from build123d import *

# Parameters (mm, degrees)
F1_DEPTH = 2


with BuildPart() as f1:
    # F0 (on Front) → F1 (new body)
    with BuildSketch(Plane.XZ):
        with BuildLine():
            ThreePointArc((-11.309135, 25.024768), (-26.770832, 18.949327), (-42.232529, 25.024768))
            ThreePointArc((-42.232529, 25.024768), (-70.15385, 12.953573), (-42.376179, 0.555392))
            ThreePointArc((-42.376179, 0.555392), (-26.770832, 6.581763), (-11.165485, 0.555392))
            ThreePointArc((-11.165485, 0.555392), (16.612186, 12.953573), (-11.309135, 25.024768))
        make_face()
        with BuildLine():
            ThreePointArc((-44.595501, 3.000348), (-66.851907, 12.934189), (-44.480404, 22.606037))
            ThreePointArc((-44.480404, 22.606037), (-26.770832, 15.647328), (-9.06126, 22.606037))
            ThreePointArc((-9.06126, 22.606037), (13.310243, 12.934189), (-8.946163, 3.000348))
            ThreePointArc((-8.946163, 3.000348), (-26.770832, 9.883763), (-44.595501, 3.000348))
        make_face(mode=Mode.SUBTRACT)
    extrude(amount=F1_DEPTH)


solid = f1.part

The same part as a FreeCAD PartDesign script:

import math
import FreeCAD as App
import Part
import Sketcher

doc = App.newDocument("Part")
params = doc.addObject("Spreadsheet::Sheet", "Params")
for row, (alias, value) in enumerate([
    ("pad1_length", "2 mm"),
], start=1):
    params.set(f"A{row}", alias)
    params.set(f"B{row}", "=" + value)
    params.setAlias(f"B{row}", alias)

body = doc.addObject("PartDesign::Body", "Body")

sketch1 = doc.addObject("Sketcher::SketchObject", "Sketch")
body.addObject(sketch1)
sketch1.AttachmentSupport = (doc.XZ_Plane, [""])
sketch1.MapMode = "FlatFace"
sketch1.addGeometry([
    Part.ArcOfCircle(Part.Circle(App.Vector(-26.770832, 41.661675, 0), App.Vector(0, 0, 1), 22.712348), math.radians(-132.903196), math.radians(-47.096804)),
    Part.ArcOfCircle(Part.Circle(App.Vector(-53.541664, 12.85605, 0), App.Vector(0, 0, 1), 16.612472), math.radians(47.096806), math.radians(312.23048)),
    Part.ArcOfCircle(Part.Circle(App.Vector(-26.770832, -16.636522, 0), App.Vector(0, 0, 1), 23.218285), math.radians(47.769524), math.radians(132.230476)),
    Part.ArcOfCircle(Part.Circle(App.Vector(0, 12.85605, 0), App.Vector(0, 0, 1), 16.612472), math.radians(-132.23048), math.radians(132.903194)),
    Part.ArcOfCircle(Part.Circle(App.Vector(-26.770832, -16.63652, 0), App.Vector(0, 0, 1), 26.520283), math.radians(47.76952), math.radians(132.23048)),
    Part.ArcOfCircle(Part.Circle(App.Vector(-53.541664, 12.85605, 0), App.Vector(0, 0, 1), 13.310473), math.radians(47.096808), math.radians(312.23048)),
    Part.ArcOfCircle(Part.Circle(App.Vector(-26.770832, 41.661677, 0), App.Vector(0, 0, 1), 26.014349), math.radians(-132.903192), math.radians(-47.096808)),
    Part.ArcOfCircle(Part.Circle(App.Vector(0, 12.85605, 0), App.Vector(0, 0, 1), 13.310473), math.radians(-132.23048), math.radians(132.903192)),
], False)
sketch1.addConstraint([
    Sketcher.Constraint("Tangent", 0, 1, 1, 1),
    Sketcher.Constraint("Tangent", 1, 2, 2, 2),
    Sketcher.Constraint("Tangent", 2, 1, 3, 1),
    Sketcher.Constraint("Tangent", 3, 2, 0, 2),
    Sketcher.Constraint("Tangent", 4, 2, 5, 2),
    Sketcher.Constraint("Tangent", 5, 1, 6, 1),
    Sketcher.Constraint("Tangent", 6, 2, 7, 2),
    Sketcher.Constraint("Tangent", 7, 1, 4, 1),
    Sketcher.Constraint("Coincident", 4, 3, 2, 3),
    Sketcher.Constraint("Coincident", 5, 3, 1, 3),
    Sketcher.Constraint("Coincident", 6, 3, 0, 3),
    Sketcher.Constraint("Equal", 1, 3),
    Sketcher.Constraint("Equal", 5, 7),
    Sketcher.Constraint("PointOnObject", 3, 3, -2),
    Sketcher.Constraint("Horizontal", 1, 3, 3, 3),
    Sketcher.Constraint("Radius", 6, 26.014349),
    Sketcher.Constraint("Radius", 0, 22.712348),
    Sketcher.Constraint("Radius", 1, 16.612472),
    Sketcher.Constraint("Radius", 2, 23.218285),
    Sketcher.Constraint("DistanceX", 4, 2, -1, 1, 44.595501),
    Sketcher.Constraint("DistanceY", -1, 1, 1, 3, 12.85605),
])
pad1 = doc.addObject("PartDesign::Pad", "Pad")
body.addObject(pad1)
pad1.Profile = sketch1
pad1.setExpression("Length", "Params.pad1_length")

doc.recompute()
